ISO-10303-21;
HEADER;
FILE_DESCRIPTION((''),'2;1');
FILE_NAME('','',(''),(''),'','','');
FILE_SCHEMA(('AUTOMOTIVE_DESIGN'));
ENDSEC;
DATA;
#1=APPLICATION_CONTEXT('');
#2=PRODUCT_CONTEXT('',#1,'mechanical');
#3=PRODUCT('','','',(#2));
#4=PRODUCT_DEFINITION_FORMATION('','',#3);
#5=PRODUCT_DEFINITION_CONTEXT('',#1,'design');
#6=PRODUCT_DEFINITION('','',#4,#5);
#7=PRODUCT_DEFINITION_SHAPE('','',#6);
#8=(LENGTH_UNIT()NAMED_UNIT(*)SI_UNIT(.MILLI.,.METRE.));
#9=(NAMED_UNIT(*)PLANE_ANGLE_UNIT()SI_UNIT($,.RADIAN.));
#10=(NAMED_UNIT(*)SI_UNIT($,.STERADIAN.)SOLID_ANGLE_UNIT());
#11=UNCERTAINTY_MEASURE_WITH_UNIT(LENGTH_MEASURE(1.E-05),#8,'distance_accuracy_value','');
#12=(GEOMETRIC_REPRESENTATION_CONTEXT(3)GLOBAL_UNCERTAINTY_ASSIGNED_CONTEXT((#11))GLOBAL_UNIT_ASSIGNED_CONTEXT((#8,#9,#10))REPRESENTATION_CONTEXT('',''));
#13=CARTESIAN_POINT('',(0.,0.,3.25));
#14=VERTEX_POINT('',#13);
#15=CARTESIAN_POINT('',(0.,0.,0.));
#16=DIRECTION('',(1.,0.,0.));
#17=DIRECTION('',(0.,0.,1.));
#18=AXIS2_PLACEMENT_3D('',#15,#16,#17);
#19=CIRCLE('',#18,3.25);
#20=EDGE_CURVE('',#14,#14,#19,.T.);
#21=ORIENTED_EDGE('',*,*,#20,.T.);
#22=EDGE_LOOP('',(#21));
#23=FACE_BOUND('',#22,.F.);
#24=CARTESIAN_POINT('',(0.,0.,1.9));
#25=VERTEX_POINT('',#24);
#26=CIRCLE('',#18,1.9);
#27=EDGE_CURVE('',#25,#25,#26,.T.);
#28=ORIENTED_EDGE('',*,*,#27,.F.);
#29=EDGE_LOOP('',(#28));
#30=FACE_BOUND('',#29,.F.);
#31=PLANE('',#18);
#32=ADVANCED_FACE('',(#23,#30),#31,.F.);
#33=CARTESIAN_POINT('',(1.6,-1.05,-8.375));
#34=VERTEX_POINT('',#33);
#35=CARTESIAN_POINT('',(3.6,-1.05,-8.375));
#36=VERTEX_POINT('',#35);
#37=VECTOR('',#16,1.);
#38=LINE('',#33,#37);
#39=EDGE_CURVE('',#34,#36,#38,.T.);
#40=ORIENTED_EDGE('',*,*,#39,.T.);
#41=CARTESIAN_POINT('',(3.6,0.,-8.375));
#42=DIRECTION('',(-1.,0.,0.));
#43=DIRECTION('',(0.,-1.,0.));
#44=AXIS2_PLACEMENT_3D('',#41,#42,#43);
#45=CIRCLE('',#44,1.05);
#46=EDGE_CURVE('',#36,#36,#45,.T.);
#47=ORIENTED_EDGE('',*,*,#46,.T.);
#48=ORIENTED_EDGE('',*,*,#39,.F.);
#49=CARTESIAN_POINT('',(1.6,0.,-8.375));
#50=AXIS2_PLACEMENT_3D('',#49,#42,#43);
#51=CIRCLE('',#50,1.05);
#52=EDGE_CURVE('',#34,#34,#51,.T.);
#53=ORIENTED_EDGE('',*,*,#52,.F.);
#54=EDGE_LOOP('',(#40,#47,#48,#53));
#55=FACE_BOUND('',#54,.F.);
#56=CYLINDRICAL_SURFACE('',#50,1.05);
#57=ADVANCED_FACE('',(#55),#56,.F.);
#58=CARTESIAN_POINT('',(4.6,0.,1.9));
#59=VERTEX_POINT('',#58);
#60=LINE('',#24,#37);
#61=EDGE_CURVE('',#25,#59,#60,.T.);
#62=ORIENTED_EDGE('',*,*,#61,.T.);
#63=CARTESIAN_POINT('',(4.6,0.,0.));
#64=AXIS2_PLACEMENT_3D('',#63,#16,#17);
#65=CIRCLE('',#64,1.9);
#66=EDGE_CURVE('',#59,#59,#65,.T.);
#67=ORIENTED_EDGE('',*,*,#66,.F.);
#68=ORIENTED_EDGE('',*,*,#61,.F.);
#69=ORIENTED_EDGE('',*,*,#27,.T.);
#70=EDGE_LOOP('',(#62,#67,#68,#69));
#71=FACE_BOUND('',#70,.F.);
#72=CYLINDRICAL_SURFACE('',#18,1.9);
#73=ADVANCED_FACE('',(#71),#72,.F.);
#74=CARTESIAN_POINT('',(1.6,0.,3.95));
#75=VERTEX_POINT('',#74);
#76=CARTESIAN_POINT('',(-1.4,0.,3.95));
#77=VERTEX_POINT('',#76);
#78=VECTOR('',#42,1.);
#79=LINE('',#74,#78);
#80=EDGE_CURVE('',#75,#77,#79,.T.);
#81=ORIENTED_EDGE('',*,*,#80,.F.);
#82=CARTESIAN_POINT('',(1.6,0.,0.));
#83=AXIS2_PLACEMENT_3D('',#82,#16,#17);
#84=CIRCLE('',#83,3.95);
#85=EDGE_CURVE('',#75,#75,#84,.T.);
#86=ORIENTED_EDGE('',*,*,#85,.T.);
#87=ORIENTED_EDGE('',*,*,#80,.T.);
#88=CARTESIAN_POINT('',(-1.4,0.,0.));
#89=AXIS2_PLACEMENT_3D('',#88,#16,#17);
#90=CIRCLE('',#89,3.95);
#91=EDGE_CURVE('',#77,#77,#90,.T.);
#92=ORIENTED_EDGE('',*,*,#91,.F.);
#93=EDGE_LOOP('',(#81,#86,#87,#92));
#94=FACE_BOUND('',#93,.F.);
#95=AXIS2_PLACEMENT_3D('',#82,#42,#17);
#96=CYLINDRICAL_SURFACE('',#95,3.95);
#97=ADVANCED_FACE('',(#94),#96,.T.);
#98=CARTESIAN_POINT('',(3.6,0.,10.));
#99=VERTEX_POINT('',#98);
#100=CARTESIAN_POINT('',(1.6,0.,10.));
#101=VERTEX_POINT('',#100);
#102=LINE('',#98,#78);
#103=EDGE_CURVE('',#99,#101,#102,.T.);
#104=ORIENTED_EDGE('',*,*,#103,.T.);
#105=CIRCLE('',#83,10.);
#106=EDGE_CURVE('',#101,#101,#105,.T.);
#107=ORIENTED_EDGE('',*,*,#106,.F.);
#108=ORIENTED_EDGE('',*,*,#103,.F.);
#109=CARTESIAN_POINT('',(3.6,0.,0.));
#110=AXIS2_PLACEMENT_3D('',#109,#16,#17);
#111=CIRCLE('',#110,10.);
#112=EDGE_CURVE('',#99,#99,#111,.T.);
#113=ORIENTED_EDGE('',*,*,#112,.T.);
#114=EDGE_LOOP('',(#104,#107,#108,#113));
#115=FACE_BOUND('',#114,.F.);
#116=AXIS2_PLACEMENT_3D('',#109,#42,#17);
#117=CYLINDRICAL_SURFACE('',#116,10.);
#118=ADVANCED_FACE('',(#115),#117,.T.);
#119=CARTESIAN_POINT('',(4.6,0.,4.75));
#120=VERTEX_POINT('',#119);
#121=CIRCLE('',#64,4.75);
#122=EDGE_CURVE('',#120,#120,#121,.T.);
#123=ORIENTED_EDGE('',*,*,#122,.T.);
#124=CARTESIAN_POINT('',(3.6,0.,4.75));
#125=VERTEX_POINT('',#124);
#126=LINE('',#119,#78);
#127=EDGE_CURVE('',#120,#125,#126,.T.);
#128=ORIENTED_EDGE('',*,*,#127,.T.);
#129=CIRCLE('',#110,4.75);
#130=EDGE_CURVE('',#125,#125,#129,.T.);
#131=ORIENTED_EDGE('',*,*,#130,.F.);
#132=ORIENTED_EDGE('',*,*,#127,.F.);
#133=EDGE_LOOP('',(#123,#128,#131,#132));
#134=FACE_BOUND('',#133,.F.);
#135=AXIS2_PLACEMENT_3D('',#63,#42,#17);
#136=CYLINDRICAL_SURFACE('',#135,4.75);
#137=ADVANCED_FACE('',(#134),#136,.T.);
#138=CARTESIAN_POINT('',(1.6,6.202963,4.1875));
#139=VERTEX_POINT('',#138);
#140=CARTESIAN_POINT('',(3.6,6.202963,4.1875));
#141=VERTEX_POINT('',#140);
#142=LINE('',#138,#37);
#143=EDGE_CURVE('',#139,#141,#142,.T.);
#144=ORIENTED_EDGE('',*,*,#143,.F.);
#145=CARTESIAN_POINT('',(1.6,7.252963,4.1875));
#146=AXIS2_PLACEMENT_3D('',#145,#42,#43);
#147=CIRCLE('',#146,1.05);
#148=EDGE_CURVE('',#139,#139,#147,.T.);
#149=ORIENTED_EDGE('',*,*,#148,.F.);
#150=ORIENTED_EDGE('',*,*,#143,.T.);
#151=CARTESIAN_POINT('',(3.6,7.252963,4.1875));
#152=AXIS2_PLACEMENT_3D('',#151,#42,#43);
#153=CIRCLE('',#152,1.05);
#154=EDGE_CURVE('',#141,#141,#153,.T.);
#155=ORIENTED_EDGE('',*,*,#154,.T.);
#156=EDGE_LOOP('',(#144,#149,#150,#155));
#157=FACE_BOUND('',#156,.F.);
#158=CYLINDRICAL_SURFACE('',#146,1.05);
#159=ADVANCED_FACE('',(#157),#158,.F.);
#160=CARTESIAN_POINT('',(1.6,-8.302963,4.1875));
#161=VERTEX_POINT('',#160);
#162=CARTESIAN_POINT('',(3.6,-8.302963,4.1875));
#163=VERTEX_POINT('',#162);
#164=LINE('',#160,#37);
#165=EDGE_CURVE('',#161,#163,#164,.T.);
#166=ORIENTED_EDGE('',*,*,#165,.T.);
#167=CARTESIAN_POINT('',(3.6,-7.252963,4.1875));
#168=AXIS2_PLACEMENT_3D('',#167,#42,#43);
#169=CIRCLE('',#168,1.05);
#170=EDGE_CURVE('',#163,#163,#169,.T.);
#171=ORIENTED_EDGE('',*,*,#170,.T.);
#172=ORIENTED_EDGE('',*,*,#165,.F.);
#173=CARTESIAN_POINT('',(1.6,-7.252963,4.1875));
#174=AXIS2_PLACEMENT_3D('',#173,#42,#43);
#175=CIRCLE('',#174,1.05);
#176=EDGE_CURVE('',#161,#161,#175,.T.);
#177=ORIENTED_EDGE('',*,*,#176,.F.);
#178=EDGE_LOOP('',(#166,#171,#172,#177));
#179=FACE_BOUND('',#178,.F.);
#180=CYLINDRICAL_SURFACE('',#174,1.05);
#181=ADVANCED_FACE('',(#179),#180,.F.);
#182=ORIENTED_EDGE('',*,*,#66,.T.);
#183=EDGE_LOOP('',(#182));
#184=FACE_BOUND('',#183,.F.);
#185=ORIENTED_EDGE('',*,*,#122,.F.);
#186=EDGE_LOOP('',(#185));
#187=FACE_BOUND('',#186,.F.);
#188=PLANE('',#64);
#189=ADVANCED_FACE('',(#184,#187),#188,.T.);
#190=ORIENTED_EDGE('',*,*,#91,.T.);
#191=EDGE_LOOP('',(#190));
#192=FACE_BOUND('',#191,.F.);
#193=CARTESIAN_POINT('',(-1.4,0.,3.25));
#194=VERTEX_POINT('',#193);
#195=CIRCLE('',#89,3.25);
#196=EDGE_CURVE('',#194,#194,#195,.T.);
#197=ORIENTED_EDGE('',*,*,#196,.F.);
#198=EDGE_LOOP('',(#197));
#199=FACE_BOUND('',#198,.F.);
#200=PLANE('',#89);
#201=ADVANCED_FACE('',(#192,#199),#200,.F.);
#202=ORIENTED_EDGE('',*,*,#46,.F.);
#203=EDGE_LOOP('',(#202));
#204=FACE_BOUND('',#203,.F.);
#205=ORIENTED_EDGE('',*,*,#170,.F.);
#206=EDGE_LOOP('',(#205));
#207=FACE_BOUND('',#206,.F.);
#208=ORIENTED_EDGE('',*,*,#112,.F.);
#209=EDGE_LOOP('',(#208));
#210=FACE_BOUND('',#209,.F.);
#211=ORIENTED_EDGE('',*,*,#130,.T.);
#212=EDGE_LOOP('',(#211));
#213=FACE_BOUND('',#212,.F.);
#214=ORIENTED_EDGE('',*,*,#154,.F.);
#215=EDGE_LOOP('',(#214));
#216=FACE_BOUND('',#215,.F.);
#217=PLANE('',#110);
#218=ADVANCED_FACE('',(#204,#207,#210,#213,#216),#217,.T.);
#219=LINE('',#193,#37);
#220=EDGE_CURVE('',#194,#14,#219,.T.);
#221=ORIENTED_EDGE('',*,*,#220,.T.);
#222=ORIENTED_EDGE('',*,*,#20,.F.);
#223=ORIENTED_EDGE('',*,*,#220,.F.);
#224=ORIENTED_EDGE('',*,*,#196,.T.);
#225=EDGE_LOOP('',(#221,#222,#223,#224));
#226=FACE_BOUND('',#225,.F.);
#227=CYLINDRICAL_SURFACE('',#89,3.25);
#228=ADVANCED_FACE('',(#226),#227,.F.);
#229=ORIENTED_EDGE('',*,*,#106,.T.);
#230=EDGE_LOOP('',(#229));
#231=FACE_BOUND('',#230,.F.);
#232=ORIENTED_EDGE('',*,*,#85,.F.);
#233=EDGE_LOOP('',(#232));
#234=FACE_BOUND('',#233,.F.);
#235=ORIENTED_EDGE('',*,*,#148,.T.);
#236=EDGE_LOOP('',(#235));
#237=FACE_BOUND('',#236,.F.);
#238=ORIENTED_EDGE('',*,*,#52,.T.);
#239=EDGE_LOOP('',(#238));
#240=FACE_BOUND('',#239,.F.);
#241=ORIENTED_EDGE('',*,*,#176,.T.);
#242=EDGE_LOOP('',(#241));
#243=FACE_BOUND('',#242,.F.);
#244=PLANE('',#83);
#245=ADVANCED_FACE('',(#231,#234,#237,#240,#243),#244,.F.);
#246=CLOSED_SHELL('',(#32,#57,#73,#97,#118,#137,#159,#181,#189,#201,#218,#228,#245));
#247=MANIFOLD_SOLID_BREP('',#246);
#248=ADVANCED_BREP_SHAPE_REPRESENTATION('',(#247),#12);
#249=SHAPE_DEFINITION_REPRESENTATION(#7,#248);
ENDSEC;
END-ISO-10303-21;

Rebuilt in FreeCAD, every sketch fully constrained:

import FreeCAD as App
import Part
import Sketcher
Q = App.Units.Quantity


def add_polygon(sketch, points):
    """Adds a closed chain of lines whose ends are joined by coincident constraints."""
    first, n = sketch.GeometryCount, len(points)
    for a, b in zip(points, points[1:] + points[:1]):
        sketch.addGeometry(Part.LineSegment(App.Vector(*a, 0), App.Vector(*b, 0)), False)
    for i in range(n):
        sketch.addConstraint(Sketcher.Constraint("Coincident", first + i, 2, first + (i + 1) % n, 1))

doc = App.newDocument("Part")
body = doc.addObject("PartDesign::Body", "Body")

sketch1 = body.newObject("Sketcher::SketchObject", "Sketch")
sketch1.AttachmentSupport = (doc.getObject("XZ_Plane"), [""])
sketch1.MapMode = "FlatFace"
add_polygon(sketch1, [(0, 1.9), (4.6, 1.9), (4.6, 4.8), (3.6, 4.8), (3.6, 10), (1.6, 10), (1.6, 4), (-1.4, 4), (-1.4, 3.2), (0, 3.2)])
sketch1.addConstraint([
    Sketcher.Constraint("Horizontal", 0),
    Sketcher.Constraint("Vertical", 1),
    Sketcher.Constraint("Horizontal", 2),
    Sketcher.Constraint("Vertical", 3),
    Sketcher.Constraint("Horizontal", 4),
    Sketcher.Constraint("Vertical", 5),
    Sketcher.Constraint("Horizontal", 6),
    Sketcher.Constraint("Vertical", 7),
    Sketcher.Constraint("Horizontal", 8),
    Sketcher.Constraint("Vertical", 9),
    Sketcher.Constraint("PointOnObject", 8, 2, -2),
    Sketcher.Constraint("DistanceX", 2, 2, 2, 1, Q("1 mm")),
    Sketcher.Constraint("DistanceX", 4, 2, 4, 1, Q("2 mm")),
    Sketcher.Constraint("DistanceX", 6, 2, 6, 1, Q("3 mm")),
    Sketcher.Constraint("DistanceX", 0, 1, 0, 2, Q("4.6 mm")),
    Sketcher.Constraint("DistanceY", 7, 2, 7, 1, Q("0.7 mm")),
    Sketcher.Constraint("DistanceY", -1, 1, 3, 2, Q("10 mm")),
    Sketcher.Constraint("DistanceY", 1, 1, 1, 2, Q("2.85 mm")),
    Sketcher.Constraint("DistanceY", 3, 1, 3, 2, Q("5.25 mm")),
    Sketcher.Constraint("DistanceY", 5, 2, 5, 1, Q("6.05 mm")),
])
revolution = body.newObject("PartDesign::Revolution", "Revolution")
revolution.Profile = sketch1
revolution.ReferenceAxis = (sketch1, ["H_Axis"])
revolution.Angle = 360

sketch2 = body.newObject("Sketcher::SketchObject", "Sketch001")
sketch2.AttachmentSupport = (doc.getObject("YZ_Plane"), [""])
sketch2.MapMode = "FlatFace"
sketch2.AttachmentOffset = App.Placement(App.Vector(0, 0, 1.6), App.Rotation())
sketch2.addGeometry([
    Part.Circle(App.Vector(7.3, 4.2, 0), App.Vector(0, 0, 1), 1.1),
    Part.Circle(App.Vector(-7.3, 4.2, 0), App.Vector(0, 0, 1), 1.1),
    Part.Circle(App.Vector(0, -8.4, 0), App.Vector(0, 0, 1), 1.1),
], False)
sketch2.addConstraint([
    Sketcher.Constraint("Equal", 0, 1),
    Sketcher.Constraint("Equal", 1, 2),
    Sketcher.Constraint("Symmetric", 0, 3, 1, 3, -2),
    Sketcher.Constraint("PointOnObject", 2, 3, -2),
    Sketcher.Constraint("Diameter", 0, Q("2.1 mm")),
    Sketcher.Constraint("DistanceY", 2, 3, -1, 1, Q("8.375 mm")),
    Sketcher.Constraint("DistanceY", -1, 1, 0, 3, Q("4.1875 mm")),
    Sketcher.Constraint("DistanceX", -1, 1, 0, 3, Q("7.252963 mm")),
])
pocket1 = body.newObject("PartDesign::Pocket", "Pocket")
pocket1.Profile = sketch2
pocket1.Type = "ThroughAll"
pocket1.Reversed = True

doc.recompute()
